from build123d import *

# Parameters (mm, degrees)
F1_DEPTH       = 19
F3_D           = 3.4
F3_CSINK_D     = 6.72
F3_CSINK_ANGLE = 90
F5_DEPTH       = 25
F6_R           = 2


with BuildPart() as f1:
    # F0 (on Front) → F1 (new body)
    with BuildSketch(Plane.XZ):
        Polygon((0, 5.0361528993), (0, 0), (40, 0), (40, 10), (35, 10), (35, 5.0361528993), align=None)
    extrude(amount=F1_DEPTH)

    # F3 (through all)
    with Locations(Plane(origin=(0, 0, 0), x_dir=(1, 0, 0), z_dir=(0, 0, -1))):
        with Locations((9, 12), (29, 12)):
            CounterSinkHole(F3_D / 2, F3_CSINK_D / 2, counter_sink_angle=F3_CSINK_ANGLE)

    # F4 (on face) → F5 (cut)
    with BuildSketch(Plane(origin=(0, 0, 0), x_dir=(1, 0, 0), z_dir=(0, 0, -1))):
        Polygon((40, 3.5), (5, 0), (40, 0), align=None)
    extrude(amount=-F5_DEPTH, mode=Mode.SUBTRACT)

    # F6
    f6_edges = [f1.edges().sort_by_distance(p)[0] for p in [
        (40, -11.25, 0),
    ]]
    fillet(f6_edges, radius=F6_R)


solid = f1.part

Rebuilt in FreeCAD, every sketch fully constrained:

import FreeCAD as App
import Part
import Sketcher

V = App.Vector
Q = App.Units.Quantity


def edges_at(feature, points):
    """Names of the edges that pass closest to the given points."""
    edges = feature.Shape.Edges
    near = lambda p: min(range(len(edges)), key=lambda i: edges[i].distToShape(Part.Vertex(*p))[0])
    return sorted({f"Edge{near(p) + 1}" for p in points})

doc = App.newDocument("Part")
body = doc.addObject("PartDesign::Body", "Body")

# Sketch on XZ plane
sketch1 = body.newObject("Sketcher::SketchObject", "Sketch")
sketch1.AttachmentSupport = (doc.getObject("XZ_Plane"), [""])
sketch1.MapMode = "FlatFace"
sketch1.addGeometry(Part.LineSegment(V(0, 5.036153, 0), V(0, 0, 0)), False)
sketch1.addGeometry(Part.LineSegment(V(0, 0, 0), V(40, 0, 0)), False)
sketch1.addGeometry(Part.LineSegment(V(40, 0, 0), V(40, 10, 0)), False)
sketch1.addGeometry(Part.LineSegment(V(40, 10, 0), V(35, 10, 0)), False)
sketch1.addGeometry(Part.LineSegment(V(35, 10, 0), V(35, 5.036153, 0)), False)
sketch1.addGeometry(Part.LineSegment(V(35, 5.036153, 0), V(0, 5.036153, 0)), False)
sketch1.addConstraint(Sketcher.Constraint("Coincident", 0, 2, 1, 1))
sketch1.addConstraint(Sketcher.Constraint("Coincident", 1, 2, 2, 1))
sketch1.addConstraint(Sketcher.Constraint("Coincident", 2, 2, 3, 1))
sketch1.addConstraint(Sketcher.Constraint("Coincident", 3, 2, 4, 1))
sketch1.addConstraint(Sketcher.Constraint("Coincident", 4, 2, 5, 1))
sketch1.addConstraint(Sketcher.Constraint("Coincident", 5, 2, 0, 1))
sketch1.addConstraint(Sketcher.Constraint("Vertical", 0))
sketch1.addConstraint(Sketcher.Constraint("Horizontal", 1))
sketch1.addConstraint(Sketcher.Constraint("Vertical", 2))
sketch1.addConstraint(Sketcher.Constraint("Horizontal", 3))
sketch1.addConstraint(Sketcher.Constraint("Vertical", 4))
sketch1.addConstraint(Sketcher.Constraint("Horizontal", 5))
sketch1.addConstraint(Sketcher.Constraint("Coincident", 0, 2, -1, 1))
sketch1.addConstraint(Sketcher.Constraint("DistanceX", 1, 1, 1, 2, Q("40 mm")))
sketch1.addConstraint(Sketcher.Constraint("DistanceX", 3, 2, 3, 1, Q("5 mm")))
sketch1.addConstraint(Sketcher.Constraint("DistanceY", 2, 1, 2, 2, Q("10 mm")))
sketch1.addConstraint(Sketcher.Constraint("DistanceY", 0, 2, 0, 1, Q("5.036153 mm")))
pad1 = body.newObject("PartDesign::Pad", "Pad")
pad1.Profile = sketch1
pad1.Length = 19

# Sketch on XY plane
sketch2 = body.newObject("Sketcher::SketchObject", "Sketch001")
sketch2.AttachmentSupport = (doc.getObject("XY_Plane"), [""])
sketch2.MapMode = "FlatFace"
sketch2.addGeometry(Part.Circle(V(9, -12, 0), V(0, 0, 1), 1.7), False)
sketch2.addGeometry(Part.Circle(V(29, -12, 0), V(0, 0, 1), 1.7), False)
sketch2.addConstraint(Sketcher.Constraint("Equal", 0, 1))
sketch2.addConstraint(Sketcher.Constraint("Horizontal", 0, 3, 1, 3))
sketch2.addConstraint(Sketcher.Constraint("Diameter", 0, Q("3.4 mm")))
sketch2.addConstraint(Sketcher.Constraint("DistanceX", -1, 1, 0, 3, Q("9 mm")))
sketch2.addConstraint(Sketcher.Constraint("DistanceY", 0, 3, -1, 1, Q("12 mm")))
sketch2.addConstraint(Sketcher.Constraint("DistanceX", -1, 1, 1, 3, Q("29 mm")))
doc.recompute()
hole = body.newObject("PartDesign::Hole", "Hole")
hole.Profile = sketch2
hole.ThreadType = "None"
hole.Diameter = 3.4
hole.DepthType = "ThroughAll"
hole.HoleCutType = "Countersink"
hole.HoleCutDiameter = 6.72
hole.HoleCutCountersinkAngle = 90
hole.Reversed = True

# Sketch on XY plane
sketch3 = body.newObject("Sketcher::SketchObject", "Sketch002")
sketch3.AttachmentSupport = (doc.getObject("XY_Plane"), [""])
sketch3.MapMode = "FlatFace"
sketch3.addGeometry(Part.LineSegment(V(40, -3.5, 0), V(5, 0, 0)), False)
sketch3.addGeometry(Part.LineSegment(V(5, 0, 0), V(40, 0, 0)), False)
sketch3.addGeometry(Part.LineSegment(V(40, 0, 0), V(40, -3.5, 0)), False)
sketch3.addConstraint(Sketcher.Constraint("Coincident", 0, 2, 1, 1))
sketch3.addConstraint(Sketcher.Constraint("Coincident", 1, 2, 2, 1))
sketch3.addConstraint(Sketcher.Constraint("Coincident", 2, 2, 0, 1))
sketch3.addConstraint(Sketcher.Constraint("Horizontal", 1))
sketch3.addConstraint(Sketcher.Constraint("Vertical", 2))
sketch3.addConstraint(Sketcher.Constraint("PointOnObject", 0, 2, -1))
sketch3.addConstraint(Sketcher.Constraint("DistanceX", 1, 1, 1, 2, Q("35 mm")))
sketch3.addConstraint(Sketcher.Constraint("DistanceY", 2, 2, 2, 1, Q("3.5 mm")))
sketch3.addConstraint(Sketcher.Constraint("DistanceX", -1, 1, 0, 2, Q("5 mm")))
pocket1 = body.newObject("PartDesign::Pocket", "Pocket")
pocket1.Profile = sketch3
pocket1.Length = 25
pocket1.Reversed = True
doc.recompute()

fillet = body.newObject("PartDesign::Fillet", "Fillet")
fillet.Base = (pocket1, edges_at(pocket1, [(40, -11.25, 0)]))
fillet.Radius = 2

doc.recompute()
